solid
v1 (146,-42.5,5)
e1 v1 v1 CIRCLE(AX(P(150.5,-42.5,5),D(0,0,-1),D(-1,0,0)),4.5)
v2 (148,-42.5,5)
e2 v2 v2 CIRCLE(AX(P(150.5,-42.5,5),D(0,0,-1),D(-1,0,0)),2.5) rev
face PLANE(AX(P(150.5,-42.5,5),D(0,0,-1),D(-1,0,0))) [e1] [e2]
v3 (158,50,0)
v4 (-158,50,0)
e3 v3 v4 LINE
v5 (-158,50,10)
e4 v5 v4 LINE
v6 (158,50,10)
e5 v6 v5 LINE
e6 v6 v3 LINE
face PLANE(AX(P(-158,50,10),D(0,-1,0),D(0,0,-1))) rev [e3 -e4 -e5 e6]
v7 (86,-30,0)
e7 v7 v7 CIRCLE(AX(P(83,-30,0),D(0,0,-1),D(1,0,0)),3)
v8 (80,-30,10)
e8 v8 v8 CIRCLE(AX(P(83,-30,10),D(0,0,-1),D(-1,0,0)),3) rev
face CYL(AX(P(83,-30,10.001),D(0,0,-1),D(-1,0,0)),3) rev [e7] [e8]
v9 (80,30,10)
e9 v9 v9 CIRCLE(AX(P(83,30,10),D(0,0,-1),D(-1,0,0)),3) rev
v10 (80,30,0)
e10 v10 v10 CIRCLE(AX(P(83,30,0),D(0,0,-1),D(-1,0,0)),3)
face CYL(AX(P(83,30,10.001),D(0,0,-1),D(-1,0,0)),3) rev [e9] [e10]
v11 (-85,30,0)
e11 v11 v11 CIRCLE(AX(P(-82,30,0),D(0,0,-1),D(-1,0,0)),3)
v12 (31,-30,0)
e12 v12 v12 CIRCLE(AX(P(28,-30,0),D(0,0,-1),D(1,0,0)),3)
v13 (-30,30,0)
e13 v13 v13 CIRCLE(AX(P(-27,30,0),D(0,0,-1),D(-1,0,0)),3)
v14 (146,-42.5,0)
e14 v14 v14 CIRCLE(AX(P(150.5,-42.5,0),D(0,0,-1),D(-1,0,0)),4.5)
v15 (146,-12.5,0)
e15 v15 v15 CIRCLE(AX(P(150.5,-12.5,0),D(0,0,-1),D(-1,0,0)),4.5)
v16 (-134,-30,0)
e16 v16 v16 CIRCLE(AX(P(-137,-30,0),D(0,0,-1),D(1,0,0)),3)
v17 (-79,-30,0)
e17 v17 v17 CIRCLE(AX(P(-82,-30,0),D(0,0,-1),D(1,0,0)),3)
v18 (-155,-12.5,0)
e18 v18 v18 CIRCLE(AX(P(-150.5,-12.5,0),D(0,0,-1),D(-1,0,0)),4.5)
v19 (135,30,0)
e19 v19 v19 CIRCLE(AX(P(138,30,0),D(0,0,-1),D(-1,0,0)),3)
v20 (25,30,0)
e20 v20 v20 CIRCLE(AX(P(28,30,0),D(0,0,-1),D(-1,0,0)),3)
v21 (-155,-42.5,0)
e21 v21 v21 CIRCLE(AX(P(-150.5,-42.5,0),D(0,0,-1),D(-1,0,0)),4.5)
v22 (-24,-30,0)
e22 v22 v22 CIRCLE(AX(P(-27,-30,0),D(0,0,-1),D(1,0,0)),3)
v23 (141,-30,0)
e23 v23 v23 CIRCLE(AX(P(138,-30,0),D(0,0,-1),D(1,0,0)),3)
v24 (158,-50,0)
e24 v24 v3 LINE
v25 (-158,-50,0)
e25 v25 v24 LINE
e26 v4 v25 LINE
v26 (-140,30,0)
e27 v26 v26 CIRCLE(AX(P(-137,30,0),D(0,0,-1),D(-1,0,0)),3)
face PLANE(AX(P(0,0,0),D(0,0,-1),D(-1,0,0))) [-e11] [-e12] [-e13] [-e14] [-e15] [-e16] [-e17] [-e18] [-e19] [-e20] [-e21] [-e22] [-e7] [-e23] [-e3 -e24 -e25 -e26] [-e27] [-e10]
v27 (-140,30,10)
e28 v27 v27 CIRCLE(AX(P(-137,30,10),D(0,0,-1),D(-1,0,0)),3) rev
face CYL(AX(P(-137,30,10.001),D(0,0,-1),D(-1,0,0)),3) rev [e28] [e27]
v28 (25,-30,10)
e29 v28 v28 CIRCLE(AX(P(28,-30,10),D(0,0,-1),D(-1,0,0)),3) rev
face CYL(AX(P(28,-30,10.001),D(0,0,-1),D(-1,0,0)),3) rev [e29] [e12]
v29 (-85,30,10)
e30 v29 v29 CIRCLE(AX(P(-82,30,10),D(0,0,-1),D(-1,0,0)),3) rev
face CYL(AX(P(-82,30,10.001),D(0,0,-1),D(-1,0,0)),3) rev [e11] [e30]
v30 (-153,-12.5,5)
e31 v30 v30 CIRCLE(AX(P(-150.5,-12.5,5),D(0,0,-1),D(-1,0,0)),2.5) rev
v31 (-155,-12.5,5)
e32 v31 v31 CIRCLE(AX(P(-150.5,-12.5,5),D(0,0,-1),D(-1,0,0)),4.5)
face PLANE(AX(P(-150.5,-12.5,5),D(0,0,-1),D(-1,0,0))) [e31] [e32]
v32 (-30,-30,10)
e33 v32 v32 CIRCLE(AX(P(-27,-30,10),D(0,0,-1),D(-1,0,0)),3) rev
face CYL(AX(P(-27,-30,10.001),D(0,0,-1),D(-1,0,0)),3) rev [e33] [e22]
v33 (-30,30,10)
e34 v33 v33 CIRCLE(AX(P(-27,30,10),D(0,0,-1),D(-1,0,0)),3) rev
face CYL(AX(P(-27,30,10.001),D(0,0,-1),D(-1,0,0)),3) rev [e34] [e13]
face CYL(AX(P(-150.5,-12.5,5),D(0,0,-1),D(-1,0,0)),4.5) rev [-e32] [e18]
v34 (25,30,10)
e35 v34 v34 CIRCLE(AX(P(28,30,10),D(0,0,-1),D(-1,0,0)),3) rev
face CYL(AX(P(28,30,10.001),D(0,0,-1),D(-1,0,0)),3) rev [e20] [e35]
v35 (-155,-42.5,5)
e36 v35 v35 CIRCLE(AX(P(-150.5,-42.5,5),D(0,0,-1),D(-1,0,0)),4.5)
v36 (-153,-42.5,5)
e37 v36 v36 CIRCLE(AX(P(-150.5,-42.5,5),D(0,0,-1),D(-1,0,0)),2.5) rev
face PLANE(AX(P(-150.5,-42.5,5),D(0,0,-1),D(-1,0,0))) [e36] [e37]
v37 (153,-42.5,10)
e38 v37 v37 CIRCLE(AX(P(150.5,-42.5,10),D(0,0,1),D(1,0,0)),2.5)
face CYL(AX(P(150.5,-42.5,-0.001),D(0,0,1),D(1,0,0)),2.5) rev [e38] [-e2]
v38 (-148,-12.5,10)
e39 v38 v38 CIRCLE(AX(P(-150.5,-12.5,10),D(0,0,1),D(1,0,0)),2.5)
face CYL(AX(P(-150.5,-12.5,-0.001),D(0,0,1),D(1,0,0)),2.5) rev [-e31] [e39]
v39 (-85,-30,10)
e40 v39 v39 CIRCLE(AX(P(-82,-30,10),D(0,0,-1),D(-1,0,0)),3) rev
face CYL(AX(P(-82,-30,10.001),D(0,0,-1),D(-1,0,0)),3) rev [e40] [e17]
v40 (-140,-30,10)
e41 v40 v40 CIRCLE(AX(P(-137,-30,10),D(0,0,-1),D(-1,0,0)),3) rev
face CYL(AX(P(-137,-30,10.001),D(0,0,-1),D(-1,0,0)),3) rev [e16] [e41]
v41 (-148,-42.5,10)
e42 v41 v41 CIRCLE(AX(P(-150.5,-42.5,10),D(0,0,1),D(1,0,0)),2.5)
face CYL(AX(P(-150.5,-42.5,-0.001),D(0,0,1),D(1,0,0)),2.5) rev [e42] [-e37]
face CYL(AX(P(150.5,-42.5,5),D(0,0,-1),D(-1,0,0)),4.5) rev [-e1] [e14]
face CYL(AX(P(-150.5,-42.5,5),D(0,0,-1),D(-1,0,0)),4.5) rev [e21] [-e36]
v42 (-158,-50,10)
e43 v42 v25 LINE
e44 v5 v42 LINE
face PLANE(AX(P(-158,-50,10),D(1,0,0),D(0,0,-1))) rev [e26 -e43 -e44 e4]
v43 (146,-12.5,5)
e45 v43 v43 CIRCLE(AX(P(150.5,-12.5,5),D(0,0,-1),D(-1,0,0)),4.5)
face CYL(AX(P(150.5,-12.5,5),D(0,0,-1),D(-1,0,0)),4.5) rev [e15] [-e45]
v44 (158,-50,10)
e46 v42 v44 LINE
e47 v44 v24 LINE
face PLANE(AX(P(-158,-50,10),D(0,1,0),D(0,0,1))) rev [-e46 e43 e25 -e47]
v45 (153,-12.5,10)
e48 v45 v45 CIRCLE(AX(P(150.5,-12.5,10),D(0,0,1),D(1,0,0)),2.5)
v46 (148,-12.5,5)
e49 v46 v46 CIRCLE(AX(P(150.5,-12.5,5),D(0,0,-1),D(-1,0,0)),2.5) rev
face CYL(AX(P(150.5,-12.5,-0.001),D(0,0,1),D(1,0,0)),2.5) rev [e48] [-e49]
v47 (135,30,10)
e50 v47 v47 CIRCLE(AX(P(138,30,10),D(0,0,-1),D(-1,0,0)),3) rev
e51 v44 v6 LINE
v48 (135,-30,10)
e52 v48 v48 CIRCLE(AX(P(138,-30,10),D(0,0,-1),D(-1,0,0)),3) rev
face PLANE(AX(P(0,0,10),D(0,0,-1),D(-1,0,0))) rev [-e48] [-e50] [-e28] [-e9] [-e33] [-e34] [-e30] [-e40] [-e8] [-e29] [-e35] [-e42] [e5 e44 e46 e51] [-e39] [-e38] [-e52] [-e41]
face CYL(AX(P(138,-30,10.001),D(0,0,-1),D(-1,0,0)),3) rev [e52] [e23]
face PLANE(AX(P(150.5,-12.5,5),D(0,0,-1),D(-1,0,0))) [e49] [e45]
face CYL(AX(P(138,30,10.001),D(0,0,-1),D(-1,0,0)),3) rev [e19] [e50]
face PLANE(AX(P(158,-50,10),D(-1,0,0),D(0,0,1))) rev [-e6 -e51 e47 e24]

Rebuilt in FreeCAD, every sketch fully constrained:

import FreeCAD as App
import Part
import Sketcher


def add_polygon(sketch, points):
    """Adds a closed chain of lines whose ends are joined by coincident constraints."""
    first, n = sketch.GeometryCount, len(points)
    for a, b in zip(points, points[1:] + points[:1]):
        sketch.addGeometry(Part.LineSegment(App.Vector(*a, 0), App.Vector(*b, 0)), False)
    for i in range(n):
        sketch.addConstraint(Sketcher.Constraint("Coincident", first + i, 2, first + (i + 1) % n, 1))

doc = App.newDocument("Part")
params = doc.addObject("Spreadsheet::Sheet", "Params")
for row, (alias, value) in enumerate([
    ("sketch1_width", "316 mm"),
    ("sketch1_height", "100 mm"),
    ("pad1_length", "10 mm"),
    ("sketch2_diameter", "6 mm"),
    ("sketch3_diameter", "6 mm"),
    ("sketch4_diameter", "6 mm"),
    ("sketch5_diameter", "6 mm"),
    ("sketch6_diameter", "6 mm"),
    ("sketch7_diameter", "6 mm"),
    ("sketch8_diameter", "6 mm"),
    ("sketch9_diameter", "6 mm"),
    ("sketch10_diameter", "6 mm"),
    ("sketch11_diameter", "6 mm"),
    ("sketch12_diameter", "6 mm"),
    ("sketch13_diameter", "6 mm"),
    ("sketch14_diameter", "5 mm"),
    ("sketch15_diameter", "5 mm"),
    ("sketch16_diameter", "5 mm"),
    ("sketch17_diameter", "5 mm"),
    ("sketch18_diameter", "9 mm"),
    ("pocket17_length", "5 mm"),
], start=1):
    params.set(f"A{row}", alias)
    params.set(f"B{row}", "=" + value)
    params.setAlias(f"B{row}", alias)

body = doc.addObject("PartDesign::Body", "Body")

sketch1 = body.newObject("Sketcher::SketchObject", "Sketch")
sketch1.AttachmentSupport = (doc.getObject("XY_Plane"), [""])
sketch1.MapMode = "FlatFace"
add_polygon(sketch1, [(-158, 50), (-158, -50), (158, -50), (158, 50)])
sketch1.addConstraint([
    Sketcher.Constraint("Vertical", 0),
    Sketcher.Constraint("Horizontal", 1),
    Sketcher.Constraint("Vertical", 2),
    Sketcher.Constraint("Horizontal", 3),
    Sketcher.Constraint("Symmetric", 0, 2, 2, 2, -1, 1),
    Sketcher.Constraint("DistanceX", 1, 1, 1, 2, 316.0),
    Sketcher.Constraint("DistanceY", 0, 2, 0, 1, 100.0),
])
sketch1.setExpression("Constraints[9]", "Params.sketch1_width")
sketch1.setExpression("Constraints[10]", "Params.sketch1_height")
pad1 = body.newObject("PartDesign::Pad", "Pad")
pad1.Profile = sketch1
pad1.setExpression("Length", "Params.pad1_length")

sketch2 = body.newObject("Sketcher::SketchObject", "Sketch001")
sketch2.AttachmentSupport = (doc.getObject("XY_Plane"), [""])
sketch2.MapMode = "FlatFace"
sketch2.addGeometry(Part.Circle(App.Vector(138, 30, 0), App.Vector(0, 0, 1), 3), False)
sketch2.addConstraint([
    Sketcher.Constraint("Diameter", 0, 6.0),
    Sketcher.Constraint("DistanceX", -1, 1, 0, 3, 138.0),
    Sketcher.Constraint("DistanceY", -1, 1, 0, 3, 30.0),
])
sketch2.setExpression("Constraints[0]", "Params.sketch2_diameter")
pocket1 = body.newObject("PartDesign::Pocket", "Pocket")
pocket1.Profile = sketch2
pocket1.Type = "UpToFirst"
pocket1.Reversed = True

sketch3 = body.newObject("Sketcher::SketchObject", "Sketch002")
sketch3.AttachmentSupport = (doc.getObject("XY_Plane"), [""])
sketch3.MapMode = "FlatFace"
sketch3.addGeometry(Part.Circle(App.Vector(83, 30, 0), App.Vector(0, 0, 1), 3), False)
sketch3.addConstraint([
    Sketcher.Constraint("Diameter", 0, 6.0),
    Sketcher.Constraint("DistanceX", -1, 1, 0, 3, 83.0),
    Sketcher.Constraint("DistanceY", -1, 1, 0, 3, 30.0),
])
sketch3.setExpression("Constraints[0]", "Params.sketch3_diameter")
pocket2 = body.newObject("PartDesign::Pocket", "Pocket001")
pocket2.Profile = sketch3
pocket2.Type = "UpToFirst"
pocket2.Reversed = True

sketch4 = body.newObject("Sketcher::SketchObject", "Sketch003")
sketch4.AttachmentSupport = (doc.getObject("XY_Plane"), [""])
sketch4.MapMode = "FlatFace"
sketch4.addGeometry(Part.Circle(App.Vector(28, 30, 0), App.Vector(0, 0, 1), 3), False)
sketch4.addConstraint([
    Sketcher.Constraint("Diameter", 0, 6.0),
    Sketcher.Constraint("DistanceX", -1, 1, 0, 3, 28.0),
    Sketcher.Constraint("DistanceY", -1, 1, 0, 3, 30.0),
])
sketch4.setExpression("Constraints[0]", "Params.sketch4_diameter")
pocket3 = body.newObject("PartDesign::Pocket", "Pocket002")
pocket3.Profile = sketch4
pocket3.Type = "UpToFirst"
pocket3.Reversed = True

sketch5 = body.newObject("Sketcher::SketchObject", "Sketch004")
sketch5.AttachmentSupport = (doc.getObject("XY_Plane"), [""])
sketch5.MapMode = "FlatFace"
sketch5.addGeometry(Part.Circle(App.Vector(-27, 30, 0), App.Vector(0, 0, 1), 3), False)
sketch5.addConstraint([
    Sketcher.Constraint("Diameter", 0, 6.0),
    Sketcher.Constraint("DistanceX", 0, 3, -1, 1, 27.0),
    Sketcher.Constraint("DistanceY", -1, 1, 0, 3, 30.0),
])
sketch5.setExpression("Constraints[0]", "Params.sketch5_diameter")
pocket4 = body.newObject("PartDesign::Pocket", "Pocket003")
pocket4.Profile = sketch5
pocket4.Type = "UpToFirst"
pocket4.Reversed = True

sketch6 = body.newObject("Sketcher::SketchObject", "Sketch005")
sketch6.AttachmentSupport = (doc.getObject("XY_Plane"), [""])
sketch6.MapMode = "FlatFace"
sketch6.addGeometry(Part.Circle(App.Vector(-82, 30, 0), App.Vector(0, 0, 1), 3), False)
sketch6.addConstraint([
    Sketcher.Constraint("Diameter", 0, 6.0),
    Sketcher.Constraint("DistanceX", 0, 3, -1, 1, 82.0),
    Sketcher.Constraint("DistanceY", -1, 1, 0, 3, 30.0),
])
sketch6.setExpression("Constraints[0]", "Params.sketch6_diameter")
pocket5 = body.newObject("PartDesign::Pocket", "Pocket004")
pocket5.Profile = sketch6
pocket5.Type = "UpToFirst"
pocket5.Reversed = True

sketch7 = body.newObject("Sketcher::SketchObject", "Sketch006")
sketch7.AttachmentSupport = (doc.getObject("XY_Plane"), [""])
sketch7.MapMode = "FlatFace"
sketch7.addGeometry(Part.Circle(App.Vector(-137, 30, 0), App.Vector(0, 0, 1), 3), False)
sketch7.addConstraint([
    Sketcher.Constraint("Diameter", 0, 6.0),
    Sketcher.Constraint("DistanceX", 0, 3, -1, 1, 137.0),
    Sketcher.Constraint("DistanceY", -1, 1, 0, 3, 30.0),
])
sketch7.setExpression("Constraints[0]", "Params.sketch7_diameter")
pocket6 = body.newObject("PartDesign::Pocket", "Pocket005")
pocket6.Profile = sketch7
pocket6.Type = "UpToFirst"
pocket6.Reversed = True

sketch8 = body.newObject("Sketcher::SketchObject", "Sketch007")
sketch8.AttachmentSupport = (doc.getObject("XY_Plane"), [""])
sketch8.MapMode = "FlatFace"
sketch8.addGeometry(Part.Circle(App.Vector(-137, -30, 0), App.Vector(0, 0, 1), 3), False)
sketch8.addConstraint([
    Sketcher.Constraint("Diameter", 0, 6.0),
    Sketcher.Constraint("DistanceX", 0, 3, -1, 1, 137.0),
    Sketcher.Constraint("DistanceY", 0, 3, -1, 1, 30.0),
])
sketch8.setExpression("Constraints[0]", "Params.sketch8_diameter")
pocket7 = body.newObject("PartDesign::Pocket", "Pocket006")
pocket7.Profile = sketch8
pocket7.Type = "UpToFirst"
pocket7.Reversed = True

sketch9 = body.newObject("Sketcher::SketchObject", "Sketch008")
sketch9.AttachmentSupport = (doc.getObject("XY_Plane"), [""])
sketch9.MapMode = "FlatFace"
sketch9.addGeometry(Part.Circle(App.Vector(-82, -30, 0), App.Vector(0, 0, 1), 3), False)
sketch9.addConstraint([
    Sketcher.Constraint("Diameter", 0, 6.0),
    Sketcher.Constraint("DistanceX", 0, 3, -1, 1, 82.0),
    Sketcher.Constraint("DistanceY", 0, 3, -1, 1, 30.0),
])
sketch9.setExpression("Constraints[0]", "Params.sketch9_diameter")
pocket8 = body.newObject("PartDesign::Pocket", "Pocket007")
pocket8.Profile = sketch9
pocket8.Type = "UpToFirst"
pocket8.Reversed = True

sketch10 = body.newObject("Sketcher::SketchObject", "Sketch009")
sketch10.AttachmentSupport = (doc.getObject("XY_Plane"), [""])
sketch10.MapMode = "FlatFace"
sketch10.addGeometry(Part.Circle(App.Vector(-27, -30, 0), App.Vector(0, 0, 1), 3), False)
sketch10.addConstraint([
    Sketcher.Constraint("Diameter", 0, 6.0),
    Sketcher.Constraint("DistanceX", 0, 3, -1, 1, 27.0),
    Sketcher.Constraint("DistanceY", 0, 3, -1, 1, 30.0),
])
sketch10.setExpression("Constraints[0]", "Params.sketch10_diameter")
pocket9 = body.newObject("PartDesign::Pocket", "Pocket008")
pocket9.Profile = sketch10
pocket9.Type = "UpToFirst"
pocket9.Reversed = True

sketch11 = body.newObject("Sketcher::SketchObject", "Sketch010")
sketch11.AttachmentSupport = (doc.getObject("XY_Plane"), [""])
sketch11.MapMode = "FlatFace"
sketch11.addGeometry(Part.Circle(App.Vector(28, -30, 0), App.Vector(0, 0, 1), 3), False)
sketch11.addConstraint([
    Sketcher.Constraint("Diameter", 0, 6.0),
    Sketcher.Constraint("DistanceX", -1, 1, 0, 3, 28.0),
    Sketcher.Constraint("DistanceY", 0, 3, -1, 1, 30.0),
])
sketch11.setExpression("Constraints[0]", "Params.sketch11_diameter")
pocket10 = body.newObject("PartDesign::Pocket", "Pocket009")
pocket10.Profile = sketch11
pocket10.Type = "UpToFirst"
pocket10.Reversed = True

sketch12 = body.newObject("Sketcher::SketchObject", "Sketch011")
sketch12.AttachmentSupport = (doc.getObject("XY_Plane"), [""])
sketch12.MapMode = "FlatFace"
sketch12.addGeometry(Part.Circle(App.Vector(83, -30, 0), App.Vector(0, 0, 1), 3), False)
sketch12.addConstraint([
    Sketcher.Constraint("Diameter", 0, 6.0),
    Sketcher.Constraint("DistanceX", -1, 1, 0, 3, 83.0),
    Sketcher.Constraint("DistanceY", 0, 3, -1, 1, 30.0),
])
sketch12.setExpression("Constraints[0]", "Params.sketch12_diameter")
pocket11 = body.newObject("PartDesign::Pocket", "Pocket010")
pocket11.Profile = sketch12
pocket11.Type = "UpToFirst"
pocket11.Reversed = True

sketch13 = body.newObject("Sketcher::SketchObject", "Sketch012")
sketch13.AttachmentSupport = (doc.getObject("XY_Plane"), [""])
sketch13.MapMode = "FlatFace"
sketch13.addGeometry(Part.Circle(App.Vector(138, -30, 0), App.Vector(0, 0, 1), 3), False)
sketch13.addConstraint([
    Sketcher.Constraint("Diameter", 0, 6.0),
    Sketcher.Constraint("DistanceX", -1, 1, 0, 3, 138.0),
    Sketcher.Constraint("DistanceY", 0, 3, -1, 1, 30.0),
])
sketch13.setExpression("Constraints[0]", "Params.sketch13_diameter")
pocket12 = body.newObject("PartDesign::Pocket", "Pocket011")
pocket12.Profile = sketch13
pocket12.Type = "UpToFirst"
pocket12.Reversed = True

sketch14 = body.newObject("Sketcher::SketchObject", "Sketch013")
sketch14.AttachmentSupport = (doc.getObject("XY_Plane"), [""])
sketch14.MapMode = "FlatFace"
sketch14.AttachmentOffset = App.Placement(App.Vector(0, 0, 10), App.Rotation())
sketch14.addGeometry(Part.Circle(App.Vector(-150.5, -42.5, 0), App.Vector(0, 0, 1), 2.5), False)
sketch14.addConstraint([
    Sketcher.Constraint("Diameter", 0, 5.0),
    Sketcher.Constraint("DistanceX", 0, 3, -1, 1, 150.5),
    Sketcher.Constraint("DistanceY", 0, 3, -1, 1, 42.5),
])
sketch14.setExpression("Constraints[0]", "Params.sketch14_diameter")
pocket13 = body.newObject("PartDesign::Pocket", "Pocket012")
pocket13.Profile = sketch14
pocket13.Type = "UpToFirst"

sketch15 = body.newObject("Sketcher::SketchObject", "Sketch014")
sketch15.AttachmentSupport = (doc.getObject("XY_Plane"), [""])
sketch15.MapMode = "FlatFace"
sketch15.AttachmentOffset = App.Placement(App.Vector(0, 0, 10), App.Rotation())
sketch15.addGeometry(Part.Circle(App.Vector(150.5, -42.5, 0), App.Vector(0, 0, 1), 2.5), False)
sketch15.addConstraint([
    Sketcher.Constraint("Diameter", 0, 5.0),
    Sketcher.Constraint("DistanceX", -1, 1, 0, 3, 150.5),
    Sketcher.Constraint("DistanceY", 0, 3, -1, 1, 42.5),
])
sketch15.setExpression("Constraints[0]", "Params.sketch15_diameter")
pocket14 = body.newObject("PartDesign::Pocket", "Pocket013")
pocket14.Profile = sketch15
pocket14.Type = "UpToFirst"

sketch16 = body.newObject("Sketcher::SketchObject", "Sketch015")
sketch16.AttachmentSupport = (doc.getObject("XY_Plane"), [""])
sketch16.MapMode = "FlatFace"
sketch16.AttachmentOffset = App.Placement(App.Vector(0, 0, 10), App.Rotation())
sketch16.addGeometry(Part.Circle(App.Vector(-150.5, -12.5, 0), App.Vector(0, 0, 1), 2.5), False)
sketch16.addConstraint([
    Sketcher.Constraint("Diameter", 0, 5.0),
    Sketcher.Constraint("DistanceX", 0, 3, -1, 1, 150.5),
    Sketcher.Constraint("DistanceY", 0, 3, -1, 1, 12.5),
])
sketch16.setExpression("Constraints[0]", "Params.sketch16_diameter")
pocket15 = body.newObject("PartDesign::Pocket", "Pocket014")
pocket15.Profile = sketch16
pocket15.Type = "UpToFirst"

sketch17 = body.newObject("Sketcher::SketchObject", "Sketch016")
sketch17.AttachmentSupport = (doc.getObject("XY_Plane"), [""])
sketch17.MapMode = "FlatFace"
sketch17.AttachmentOffset = App.Placement(App.Vector(0, 0, 10), App.Rotation())
sketch17.addGeometry(Part.Circle(App.Vector(150.5, -12.5, 0), App.Vector(0, 0, 1), 2.5), False)
sketch17.addConstraint([
    Sketcher.Constraint("Diameter", 0, 5.0),
    Sketcher.Constraint("DistanceX", -1, 1, 0, 3, 150.5),
    Sketcher.Constraint("DistanceY", 0, 3, -1, 1, 12.5),
])
sketch17.setExpression("Constraints[0]", "Params.sketch17_diameter")
pocket16 = body.newObject("PartDesign::Pocket", "Pocket015")
pocket16.Profile = sketch17
pocket16.Type = "UpToFirst"

sketch18 = body.newObject("Sketcher::SketchObject", "Sketch017")
sketch18.AttachmentSupport = (doc.getObject("XY_Plane"), [""])
sketch18.MapMode = "FlatFace"
sketch18.addGeometry([
    Part.Circle(App.Vector(150.5, -42.5, 0), App.Vector(0, 0, 1), 4.5),
    Part.Circle(App.Vector(150.5, -12.5, 0), App.Vector(0, 0, 1), 4.5),
    Part.Circle(App.Vector(-150.5, -12.5, 0), App.Vector(0, 0, 1), 4.5),
    Part.Circle(App.Vector(-150.5, -42.5, 0), App.Vector(0, 0, 1), 4.5),
], False)
sketch18.addConstraint([
    Sketcher.Constraint("Equal", 0, 1),
    Sketcher.Constraint("Equal", 1, 2),
    Sketcher.Constraint("Equal", 2, 3),
    Sketcher.Constraint("Symmetric", 1, 3, 2, 3, -2),
    Sketcher.Constraint("Symmetric", 0, 3, 3, 3, -2),
    Sketcher.Constraint("Vertical", 0, 3, 1, 3),
    Sketcher.Constraint("Diameter", 0, 9.0),
    Sketcher.Constraint("DistanceY", 0, 3, 1, 3, 30.0),
    Sketcher.Constraint("DistanceX", 2, 3, 1, 3, 301.0),
    Sketcher.Constraint("DistanceY", 0, 3, -1, 1, 42.5),
])
sketch18.setExpression("Constraints[6]", "Params.sketch18_diameter")
pocket17 = body.newObject("PartDesign::Pocket", "Pocket016")
pocket17.Profile = sketch18
pocket17.setExpression("Length", "Params.pocket17_length")
pocket17.Reversed = True

doc.recompute()
